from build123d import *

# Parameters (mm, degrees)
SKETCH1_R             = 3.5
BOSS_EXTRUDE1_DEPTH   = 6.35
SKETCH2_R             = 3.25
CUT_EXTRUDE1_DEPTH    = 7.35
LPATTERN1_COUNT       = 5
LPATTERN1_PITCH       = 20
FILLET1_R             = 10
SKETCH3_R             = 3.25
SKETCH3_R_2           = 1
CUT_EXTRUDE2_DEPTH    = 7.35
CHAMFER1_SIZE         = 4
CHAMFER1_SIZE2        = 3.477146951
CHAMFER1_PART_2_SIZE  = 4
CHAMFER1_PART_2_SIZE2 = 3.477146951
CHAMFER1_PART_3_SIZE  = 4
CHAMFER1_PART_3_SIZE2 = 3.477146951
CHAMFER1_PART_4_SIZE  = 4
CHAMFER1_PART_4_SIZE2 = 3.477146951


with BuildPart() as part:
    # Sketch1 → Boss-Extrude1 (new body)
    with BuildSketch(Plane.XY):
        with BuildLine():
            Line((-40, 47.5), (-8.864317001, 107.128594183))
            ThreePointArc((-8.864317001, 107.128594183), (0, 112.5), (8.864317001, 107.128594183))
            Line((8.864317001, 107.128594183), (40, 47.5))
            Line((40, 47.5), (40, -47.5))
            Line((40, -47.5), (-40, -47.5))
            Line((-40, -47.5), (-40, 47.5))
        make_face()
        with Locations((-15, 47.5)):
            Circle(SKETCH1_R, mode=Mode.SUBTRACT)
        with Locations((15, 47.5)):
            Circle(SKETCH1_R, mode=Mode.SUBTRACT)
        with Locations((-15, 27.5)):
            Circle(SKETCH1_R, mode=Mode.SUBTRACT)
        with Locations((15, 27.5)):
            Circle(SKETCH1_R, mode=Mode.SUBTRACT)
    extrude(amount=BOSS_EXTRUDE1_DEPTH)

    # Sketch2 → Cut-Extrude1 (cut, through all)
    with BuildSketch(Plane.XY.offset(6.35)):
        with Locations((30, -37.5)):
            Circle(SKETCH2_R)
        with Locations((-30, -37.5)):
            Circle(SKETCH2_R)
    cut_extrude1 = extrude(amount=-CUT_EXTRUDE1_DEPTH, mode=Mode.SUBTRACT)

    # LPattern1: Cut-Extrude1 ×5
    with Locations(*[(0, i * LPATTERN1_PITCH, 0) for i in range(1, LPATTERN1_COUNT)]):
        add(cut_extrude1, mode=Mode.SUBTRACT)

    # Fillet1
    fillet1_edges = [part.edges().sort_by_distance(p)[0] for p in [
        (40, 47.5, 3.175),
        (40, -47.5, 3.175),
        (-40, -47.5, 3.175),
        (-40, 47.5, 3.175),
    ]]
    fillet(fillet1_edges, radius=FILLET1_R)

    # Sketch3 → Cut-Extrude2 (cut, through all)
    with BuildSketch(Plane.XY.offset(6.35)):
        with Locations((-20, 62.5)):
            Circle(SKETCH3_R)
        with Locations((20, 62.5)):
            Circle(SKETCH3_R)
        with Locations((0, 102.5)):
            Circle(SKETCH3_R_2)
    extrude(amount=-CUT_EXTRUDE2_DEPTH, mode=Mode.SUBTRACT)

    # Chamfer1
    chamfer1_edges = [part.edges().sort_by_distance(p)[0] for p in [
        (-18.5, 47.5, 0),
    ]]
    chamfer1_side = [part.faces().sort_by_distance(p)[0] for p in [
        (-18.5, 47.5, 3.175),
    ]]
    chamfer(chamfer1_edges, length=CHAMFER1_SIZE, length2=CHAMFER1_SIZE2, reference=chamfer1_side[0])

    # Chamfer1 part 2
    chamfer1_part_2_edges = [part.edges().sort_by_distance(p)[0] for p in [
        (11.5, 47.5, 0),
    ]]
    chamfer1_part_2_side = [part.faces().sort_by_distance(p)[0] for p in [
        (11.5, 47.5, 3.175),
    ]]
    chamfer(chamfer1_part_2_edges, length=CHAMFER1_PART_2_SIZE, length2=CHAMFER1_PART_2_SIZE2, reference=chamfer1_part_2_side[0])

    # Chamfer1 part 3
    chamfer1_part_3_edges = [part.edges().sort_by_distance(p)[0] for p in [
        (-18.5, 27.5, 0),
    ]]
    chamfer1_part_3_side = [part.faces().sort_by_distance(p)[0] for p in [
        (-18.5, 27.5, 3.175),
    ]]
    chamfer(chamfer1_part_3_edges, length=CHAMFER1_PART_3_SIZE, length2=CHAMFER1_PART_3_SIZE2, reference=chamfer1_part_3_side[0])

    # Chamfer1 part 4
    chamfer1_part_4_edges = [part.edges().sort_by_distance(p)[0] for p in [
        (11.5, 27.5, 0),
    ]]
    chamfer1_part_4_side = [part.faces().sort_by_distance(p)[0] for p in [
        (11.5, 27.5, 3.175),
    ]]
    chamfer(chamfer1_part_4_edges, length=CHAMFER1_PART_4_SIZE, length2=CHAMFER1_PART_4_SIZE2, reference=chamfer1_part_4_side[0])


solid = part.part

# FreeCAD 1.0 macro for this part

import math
import FreeCAD as App
import Part
import Sketcher

V = App.Vector


def edges_at(feature, points):
    """Names of the edges that pass closest to the given points."""
    edges = feature.Shape.Edges
    near = lambda p: min(range(len(edges)), key=lambda i: edges[i].distToShape(Part.Vertex(*p))[0])
    return sorted({f"Edge{near(p) + 1}" for p in points})

doc = App.newDocument("Part")
body = doc.addObject("PartDesign::Body", "Body")

sketch1 = body.newObject("Sketcher::SketchObject", "Sketch")
sketch1.AttachmentSupport = (doc.getObject("XY_Plane"), [""])
sketch1.MapMode = "FlatFace"
sketch1.addGeometry([
    Part.LineSegment(V(-8.9, 107.1, 0), V(-40, 47.5, 0)),
    Part.LineSegment(V(-40, 47.5, 0), V(-40, -47.5, 0)),
    Part.LineSegment(V(-40, -47.5, 0), V(40, -47.5, 0)),
    Part.LineSegment(V(40, -47.5, 0), V(40, 47.5, 0)),
    Part.LineSegment(V(40, 47.5, 0), V(8.9, 107.1, 0)),
    Part.ArcOfCircle(Part.Circle(V(0, 102.5, 0), V(0, 0, 1), 10), math.radians(28), math.radians(152)),
    Part.Circle(V(15, 27.5, 0), V(0, 0, 1), 3.5),
    Part.Circle(V(-15, 27.5, 0), V(0, 0, 1), 3.5),
    Part.Circle(V(15, 47.5, 0), V(0, 0, 1), 3.5),
    Part.Circle(V(-15, 47.5, 0), V(0, 0, 1), 3.5),
], False)
sketch1.addConstraint([
    Sketcher.Constraint("Coincident", 0, 2, 1, 1),
    Sketcher.Constraint("Coincident", 1, 2, 2, 1),
    Sketcher.Constraint("Coincident", 2, 2, 3, 1),
    Sketcher.Constraint("Coincident", 3, 2, 4, 1),
    Sketcher.Constraint("Tangent", 4, 2, 5, 1),
    Sketcher.Constraint("Tangent", 5, 2, 0, 1),
    Sketcher.Constraint("Vertical", 1),
    Sketcher.Constraint("Horizontal", 2),
    Sketcher.Constraint("Vertical", 3),
    Sketcher.Constraint("Equal", 6, 7),
    Sketcher.Constraint("Equal", 7, 8),
    Sketcher.Constraint("Equal", 8, 9),
    Sketcher.Constraint("Symmetric", 0, 2, 2, 2, -1, 1),
    Sketcher.Constraint("Symmetric", 6, 3, 7, 3, -2),
    Sketcher.Constraint("Symmetric", 8, 3, 9, 3, -2),
    Sketcher.Constraint("Symmetric", 4, 2, 5, 2, -2),
    Sketcher.Constraint("Horizontal", 9, 3, 0, 2),
    Sketcher.Constraint("Vertical", 6, 3, 8, 3),
    Sketcher.Constraint("Diameter", 6, 7.0),
    Sketcher.Constraint("Radius", 5, 10.0),
    Sketcher.Constraint("DistanceX", 2, 1, 2, 2, 80.0),
    Sketcher.Constraint("DistanceY", 1, 2, 1, 1, 95.0),
    Sketcher.Constraint("DistanceX", -1, 1, 6, 3, 15.0),
    Sketcher.Constraint("DistanceY", 6, 3, 5, 3, 75.0),
    Sketcher.Constraint("DistanceY", 6, 3, 8, 3, 20.0),
])
pad1 = body.newObject("PartDesign::Pad", "Pad")
pad1.Profile = sketch1
pad1.Length = 6.35

sketch2 = body.newObject("Sketcher::SketchObject", "Sketch001")
sketch2.AttachmentSupport = (doc.getObject("XY_Plane"), [""])
sketch2.MapMode = "FlatFace"
sketch2.AttachmentOffset = App.Placement(V(0, 0, 6.35), App.Rotation())
sketch2.addGeometry([
    Part.Circle(V(30, -37.5, 0), V(0, 0, 1), 3.2),
    Part.Circle(V(-30, -37.5, 0), V(0, 0, 1), 3.2),
], False)
sketch2.addConstraint([
    Sketcher.Constraint("Equal", 0, 1),
    Sketcher.Constraint("Symmetric", 0, 3, 1, 3, -2),
    Sketcher.Constraint("Diameter", 0, 6.5),
    Sketcher.Constraint("DistanceX", -1, 1, 0, 3, 30.0),
    Sketcher.Constraint("DistanceY", 0, 3, -1, 1, 37.5),
])
pocket1 = body.newObject("PartDesign::Pocket", "Pocket")
pocket1.Profile = sketch2
pocket1.Type = "ThroughAll"
doc.recompute()

linearpattern = body.newObject("PartDesign::LinearPattern", "LinearPattern")
linearpattern.Originals = [pocket1]
linearpattern.Direction = (doc.getObject("Y_Axis"), [""])
linearpattern.Mode = "offset"
linearpattern.Offset = 20
linearpattern.Occurrences = 5
body.Tip = linearpattern
doc.recompute()

fillet = body.newObject("PartDesign::Fillet", "Fillet")
fillet.Base = (linearpattern, edges_at(linearpattern, [
    (40, 47.5, 3.175),
    (40, -47.5, 3.175),
    (-40, -47.5, 3.175),
    (-40, 47.5, 3.175),
]))
fillet.Radius = 10

sketch3 = body.newObject("Sketcher::SketchObject", "Sketch002")
sketch3.AttachmentSupport = (doc.getObject("XY_Plane"), [""])
sketch3.MapMode = "FlatFace"
sketch3.AttachmentOffset = App.Placement(V(0, 0, 6.35), App.Rotation())
sketch3.addGeometry([
    Part.Circle(V(-20, 62.5, 0), V(0, 0, 1), 3.2),
    Part.Circle(V(20, 62.5, 0), V(0, 0, 1), 3.2),
    Part.Circle(V(0, 102.5, 0), V(0, 0, 1), 1),
], False)
sketch3.addConstraint([
    Sketcher.Constraint("Equal", 0, 1),
    Sketcher.Constraint("Symmetric", 0, 3, 1, 3, -2),
    Sketcher.Constraint("PointOnObject", 2, 3, -2),
    Sketcher.Constraint("Diameter", 2, 2.0),
    Sketcher.Constraint("Diameter", 0, 6.5),
    Sketcher.Constraint("DistanceX", 0, 3, -1, 1, 20.0),
    Sketcher.Constraint("DistanceY", 0, 3, 2, 3, 40.0),
    Sketcher.Constraint("DistanceY", -1, 1, 0, 3, 62.5),
])
pocket2 = body.newObject("PartDesign::Pocket", "Pocket001")
pocket2.Profile = sketch3
pocket2.Type = "ThroughAll"
doc.recompute()

chamfer = body.newObject("PartDesign::Chamfer", "Chamfer")
chamfer.Base = (pocket2, edges_at(pocket2, [(-18.5, 47.5, 0)]))
chamfer.ChamferType = "Two distances"
chamfer.Size = 4
chamfer.Size2 = 3.477147
chamfer.FlipDirection = True
doc.recompute()

chamfer2 = body.newObject("PartDesign::Chamfer", "Chamfer001")
chamfer2.Base = (chamfer, edges_at(chamfer, [(11.5, 47.5, 0)]))
chamfer2.ChamferType = "Two distances"
chamfer2.Size = 4
chamfer2.Size2 = 3.477147
chamfer2.FlipDirection = True
doc.recompute()

chamfer3 = body.newObject("PartDesign::Chamfer", "Chamfer002")
chamfer3.Base = (chamfer2, edges_at(chamfer2, [(-18.5, 27.5, 0)]))
chamfer3.ChamferType = "Two distances"
chamfer3.Size = 4
chamfer3.Size2 = 3.477147
chamfer3.FlipDirection = True
doc.recompute()

chamfer4 = body.newObject("PartDesign::Chamfer", "Chamfer003")
chamfer4.Base = (chamfer3, edges_at(chamfer3, [(11.5, 27.5, 0)]))
chamfer4.ChamferType = "Two distances"
chamfer4.Size = 4
chamfer4.Size2 = 3.477147
chamfer4.FlipDirection = True

doc.recompute()
